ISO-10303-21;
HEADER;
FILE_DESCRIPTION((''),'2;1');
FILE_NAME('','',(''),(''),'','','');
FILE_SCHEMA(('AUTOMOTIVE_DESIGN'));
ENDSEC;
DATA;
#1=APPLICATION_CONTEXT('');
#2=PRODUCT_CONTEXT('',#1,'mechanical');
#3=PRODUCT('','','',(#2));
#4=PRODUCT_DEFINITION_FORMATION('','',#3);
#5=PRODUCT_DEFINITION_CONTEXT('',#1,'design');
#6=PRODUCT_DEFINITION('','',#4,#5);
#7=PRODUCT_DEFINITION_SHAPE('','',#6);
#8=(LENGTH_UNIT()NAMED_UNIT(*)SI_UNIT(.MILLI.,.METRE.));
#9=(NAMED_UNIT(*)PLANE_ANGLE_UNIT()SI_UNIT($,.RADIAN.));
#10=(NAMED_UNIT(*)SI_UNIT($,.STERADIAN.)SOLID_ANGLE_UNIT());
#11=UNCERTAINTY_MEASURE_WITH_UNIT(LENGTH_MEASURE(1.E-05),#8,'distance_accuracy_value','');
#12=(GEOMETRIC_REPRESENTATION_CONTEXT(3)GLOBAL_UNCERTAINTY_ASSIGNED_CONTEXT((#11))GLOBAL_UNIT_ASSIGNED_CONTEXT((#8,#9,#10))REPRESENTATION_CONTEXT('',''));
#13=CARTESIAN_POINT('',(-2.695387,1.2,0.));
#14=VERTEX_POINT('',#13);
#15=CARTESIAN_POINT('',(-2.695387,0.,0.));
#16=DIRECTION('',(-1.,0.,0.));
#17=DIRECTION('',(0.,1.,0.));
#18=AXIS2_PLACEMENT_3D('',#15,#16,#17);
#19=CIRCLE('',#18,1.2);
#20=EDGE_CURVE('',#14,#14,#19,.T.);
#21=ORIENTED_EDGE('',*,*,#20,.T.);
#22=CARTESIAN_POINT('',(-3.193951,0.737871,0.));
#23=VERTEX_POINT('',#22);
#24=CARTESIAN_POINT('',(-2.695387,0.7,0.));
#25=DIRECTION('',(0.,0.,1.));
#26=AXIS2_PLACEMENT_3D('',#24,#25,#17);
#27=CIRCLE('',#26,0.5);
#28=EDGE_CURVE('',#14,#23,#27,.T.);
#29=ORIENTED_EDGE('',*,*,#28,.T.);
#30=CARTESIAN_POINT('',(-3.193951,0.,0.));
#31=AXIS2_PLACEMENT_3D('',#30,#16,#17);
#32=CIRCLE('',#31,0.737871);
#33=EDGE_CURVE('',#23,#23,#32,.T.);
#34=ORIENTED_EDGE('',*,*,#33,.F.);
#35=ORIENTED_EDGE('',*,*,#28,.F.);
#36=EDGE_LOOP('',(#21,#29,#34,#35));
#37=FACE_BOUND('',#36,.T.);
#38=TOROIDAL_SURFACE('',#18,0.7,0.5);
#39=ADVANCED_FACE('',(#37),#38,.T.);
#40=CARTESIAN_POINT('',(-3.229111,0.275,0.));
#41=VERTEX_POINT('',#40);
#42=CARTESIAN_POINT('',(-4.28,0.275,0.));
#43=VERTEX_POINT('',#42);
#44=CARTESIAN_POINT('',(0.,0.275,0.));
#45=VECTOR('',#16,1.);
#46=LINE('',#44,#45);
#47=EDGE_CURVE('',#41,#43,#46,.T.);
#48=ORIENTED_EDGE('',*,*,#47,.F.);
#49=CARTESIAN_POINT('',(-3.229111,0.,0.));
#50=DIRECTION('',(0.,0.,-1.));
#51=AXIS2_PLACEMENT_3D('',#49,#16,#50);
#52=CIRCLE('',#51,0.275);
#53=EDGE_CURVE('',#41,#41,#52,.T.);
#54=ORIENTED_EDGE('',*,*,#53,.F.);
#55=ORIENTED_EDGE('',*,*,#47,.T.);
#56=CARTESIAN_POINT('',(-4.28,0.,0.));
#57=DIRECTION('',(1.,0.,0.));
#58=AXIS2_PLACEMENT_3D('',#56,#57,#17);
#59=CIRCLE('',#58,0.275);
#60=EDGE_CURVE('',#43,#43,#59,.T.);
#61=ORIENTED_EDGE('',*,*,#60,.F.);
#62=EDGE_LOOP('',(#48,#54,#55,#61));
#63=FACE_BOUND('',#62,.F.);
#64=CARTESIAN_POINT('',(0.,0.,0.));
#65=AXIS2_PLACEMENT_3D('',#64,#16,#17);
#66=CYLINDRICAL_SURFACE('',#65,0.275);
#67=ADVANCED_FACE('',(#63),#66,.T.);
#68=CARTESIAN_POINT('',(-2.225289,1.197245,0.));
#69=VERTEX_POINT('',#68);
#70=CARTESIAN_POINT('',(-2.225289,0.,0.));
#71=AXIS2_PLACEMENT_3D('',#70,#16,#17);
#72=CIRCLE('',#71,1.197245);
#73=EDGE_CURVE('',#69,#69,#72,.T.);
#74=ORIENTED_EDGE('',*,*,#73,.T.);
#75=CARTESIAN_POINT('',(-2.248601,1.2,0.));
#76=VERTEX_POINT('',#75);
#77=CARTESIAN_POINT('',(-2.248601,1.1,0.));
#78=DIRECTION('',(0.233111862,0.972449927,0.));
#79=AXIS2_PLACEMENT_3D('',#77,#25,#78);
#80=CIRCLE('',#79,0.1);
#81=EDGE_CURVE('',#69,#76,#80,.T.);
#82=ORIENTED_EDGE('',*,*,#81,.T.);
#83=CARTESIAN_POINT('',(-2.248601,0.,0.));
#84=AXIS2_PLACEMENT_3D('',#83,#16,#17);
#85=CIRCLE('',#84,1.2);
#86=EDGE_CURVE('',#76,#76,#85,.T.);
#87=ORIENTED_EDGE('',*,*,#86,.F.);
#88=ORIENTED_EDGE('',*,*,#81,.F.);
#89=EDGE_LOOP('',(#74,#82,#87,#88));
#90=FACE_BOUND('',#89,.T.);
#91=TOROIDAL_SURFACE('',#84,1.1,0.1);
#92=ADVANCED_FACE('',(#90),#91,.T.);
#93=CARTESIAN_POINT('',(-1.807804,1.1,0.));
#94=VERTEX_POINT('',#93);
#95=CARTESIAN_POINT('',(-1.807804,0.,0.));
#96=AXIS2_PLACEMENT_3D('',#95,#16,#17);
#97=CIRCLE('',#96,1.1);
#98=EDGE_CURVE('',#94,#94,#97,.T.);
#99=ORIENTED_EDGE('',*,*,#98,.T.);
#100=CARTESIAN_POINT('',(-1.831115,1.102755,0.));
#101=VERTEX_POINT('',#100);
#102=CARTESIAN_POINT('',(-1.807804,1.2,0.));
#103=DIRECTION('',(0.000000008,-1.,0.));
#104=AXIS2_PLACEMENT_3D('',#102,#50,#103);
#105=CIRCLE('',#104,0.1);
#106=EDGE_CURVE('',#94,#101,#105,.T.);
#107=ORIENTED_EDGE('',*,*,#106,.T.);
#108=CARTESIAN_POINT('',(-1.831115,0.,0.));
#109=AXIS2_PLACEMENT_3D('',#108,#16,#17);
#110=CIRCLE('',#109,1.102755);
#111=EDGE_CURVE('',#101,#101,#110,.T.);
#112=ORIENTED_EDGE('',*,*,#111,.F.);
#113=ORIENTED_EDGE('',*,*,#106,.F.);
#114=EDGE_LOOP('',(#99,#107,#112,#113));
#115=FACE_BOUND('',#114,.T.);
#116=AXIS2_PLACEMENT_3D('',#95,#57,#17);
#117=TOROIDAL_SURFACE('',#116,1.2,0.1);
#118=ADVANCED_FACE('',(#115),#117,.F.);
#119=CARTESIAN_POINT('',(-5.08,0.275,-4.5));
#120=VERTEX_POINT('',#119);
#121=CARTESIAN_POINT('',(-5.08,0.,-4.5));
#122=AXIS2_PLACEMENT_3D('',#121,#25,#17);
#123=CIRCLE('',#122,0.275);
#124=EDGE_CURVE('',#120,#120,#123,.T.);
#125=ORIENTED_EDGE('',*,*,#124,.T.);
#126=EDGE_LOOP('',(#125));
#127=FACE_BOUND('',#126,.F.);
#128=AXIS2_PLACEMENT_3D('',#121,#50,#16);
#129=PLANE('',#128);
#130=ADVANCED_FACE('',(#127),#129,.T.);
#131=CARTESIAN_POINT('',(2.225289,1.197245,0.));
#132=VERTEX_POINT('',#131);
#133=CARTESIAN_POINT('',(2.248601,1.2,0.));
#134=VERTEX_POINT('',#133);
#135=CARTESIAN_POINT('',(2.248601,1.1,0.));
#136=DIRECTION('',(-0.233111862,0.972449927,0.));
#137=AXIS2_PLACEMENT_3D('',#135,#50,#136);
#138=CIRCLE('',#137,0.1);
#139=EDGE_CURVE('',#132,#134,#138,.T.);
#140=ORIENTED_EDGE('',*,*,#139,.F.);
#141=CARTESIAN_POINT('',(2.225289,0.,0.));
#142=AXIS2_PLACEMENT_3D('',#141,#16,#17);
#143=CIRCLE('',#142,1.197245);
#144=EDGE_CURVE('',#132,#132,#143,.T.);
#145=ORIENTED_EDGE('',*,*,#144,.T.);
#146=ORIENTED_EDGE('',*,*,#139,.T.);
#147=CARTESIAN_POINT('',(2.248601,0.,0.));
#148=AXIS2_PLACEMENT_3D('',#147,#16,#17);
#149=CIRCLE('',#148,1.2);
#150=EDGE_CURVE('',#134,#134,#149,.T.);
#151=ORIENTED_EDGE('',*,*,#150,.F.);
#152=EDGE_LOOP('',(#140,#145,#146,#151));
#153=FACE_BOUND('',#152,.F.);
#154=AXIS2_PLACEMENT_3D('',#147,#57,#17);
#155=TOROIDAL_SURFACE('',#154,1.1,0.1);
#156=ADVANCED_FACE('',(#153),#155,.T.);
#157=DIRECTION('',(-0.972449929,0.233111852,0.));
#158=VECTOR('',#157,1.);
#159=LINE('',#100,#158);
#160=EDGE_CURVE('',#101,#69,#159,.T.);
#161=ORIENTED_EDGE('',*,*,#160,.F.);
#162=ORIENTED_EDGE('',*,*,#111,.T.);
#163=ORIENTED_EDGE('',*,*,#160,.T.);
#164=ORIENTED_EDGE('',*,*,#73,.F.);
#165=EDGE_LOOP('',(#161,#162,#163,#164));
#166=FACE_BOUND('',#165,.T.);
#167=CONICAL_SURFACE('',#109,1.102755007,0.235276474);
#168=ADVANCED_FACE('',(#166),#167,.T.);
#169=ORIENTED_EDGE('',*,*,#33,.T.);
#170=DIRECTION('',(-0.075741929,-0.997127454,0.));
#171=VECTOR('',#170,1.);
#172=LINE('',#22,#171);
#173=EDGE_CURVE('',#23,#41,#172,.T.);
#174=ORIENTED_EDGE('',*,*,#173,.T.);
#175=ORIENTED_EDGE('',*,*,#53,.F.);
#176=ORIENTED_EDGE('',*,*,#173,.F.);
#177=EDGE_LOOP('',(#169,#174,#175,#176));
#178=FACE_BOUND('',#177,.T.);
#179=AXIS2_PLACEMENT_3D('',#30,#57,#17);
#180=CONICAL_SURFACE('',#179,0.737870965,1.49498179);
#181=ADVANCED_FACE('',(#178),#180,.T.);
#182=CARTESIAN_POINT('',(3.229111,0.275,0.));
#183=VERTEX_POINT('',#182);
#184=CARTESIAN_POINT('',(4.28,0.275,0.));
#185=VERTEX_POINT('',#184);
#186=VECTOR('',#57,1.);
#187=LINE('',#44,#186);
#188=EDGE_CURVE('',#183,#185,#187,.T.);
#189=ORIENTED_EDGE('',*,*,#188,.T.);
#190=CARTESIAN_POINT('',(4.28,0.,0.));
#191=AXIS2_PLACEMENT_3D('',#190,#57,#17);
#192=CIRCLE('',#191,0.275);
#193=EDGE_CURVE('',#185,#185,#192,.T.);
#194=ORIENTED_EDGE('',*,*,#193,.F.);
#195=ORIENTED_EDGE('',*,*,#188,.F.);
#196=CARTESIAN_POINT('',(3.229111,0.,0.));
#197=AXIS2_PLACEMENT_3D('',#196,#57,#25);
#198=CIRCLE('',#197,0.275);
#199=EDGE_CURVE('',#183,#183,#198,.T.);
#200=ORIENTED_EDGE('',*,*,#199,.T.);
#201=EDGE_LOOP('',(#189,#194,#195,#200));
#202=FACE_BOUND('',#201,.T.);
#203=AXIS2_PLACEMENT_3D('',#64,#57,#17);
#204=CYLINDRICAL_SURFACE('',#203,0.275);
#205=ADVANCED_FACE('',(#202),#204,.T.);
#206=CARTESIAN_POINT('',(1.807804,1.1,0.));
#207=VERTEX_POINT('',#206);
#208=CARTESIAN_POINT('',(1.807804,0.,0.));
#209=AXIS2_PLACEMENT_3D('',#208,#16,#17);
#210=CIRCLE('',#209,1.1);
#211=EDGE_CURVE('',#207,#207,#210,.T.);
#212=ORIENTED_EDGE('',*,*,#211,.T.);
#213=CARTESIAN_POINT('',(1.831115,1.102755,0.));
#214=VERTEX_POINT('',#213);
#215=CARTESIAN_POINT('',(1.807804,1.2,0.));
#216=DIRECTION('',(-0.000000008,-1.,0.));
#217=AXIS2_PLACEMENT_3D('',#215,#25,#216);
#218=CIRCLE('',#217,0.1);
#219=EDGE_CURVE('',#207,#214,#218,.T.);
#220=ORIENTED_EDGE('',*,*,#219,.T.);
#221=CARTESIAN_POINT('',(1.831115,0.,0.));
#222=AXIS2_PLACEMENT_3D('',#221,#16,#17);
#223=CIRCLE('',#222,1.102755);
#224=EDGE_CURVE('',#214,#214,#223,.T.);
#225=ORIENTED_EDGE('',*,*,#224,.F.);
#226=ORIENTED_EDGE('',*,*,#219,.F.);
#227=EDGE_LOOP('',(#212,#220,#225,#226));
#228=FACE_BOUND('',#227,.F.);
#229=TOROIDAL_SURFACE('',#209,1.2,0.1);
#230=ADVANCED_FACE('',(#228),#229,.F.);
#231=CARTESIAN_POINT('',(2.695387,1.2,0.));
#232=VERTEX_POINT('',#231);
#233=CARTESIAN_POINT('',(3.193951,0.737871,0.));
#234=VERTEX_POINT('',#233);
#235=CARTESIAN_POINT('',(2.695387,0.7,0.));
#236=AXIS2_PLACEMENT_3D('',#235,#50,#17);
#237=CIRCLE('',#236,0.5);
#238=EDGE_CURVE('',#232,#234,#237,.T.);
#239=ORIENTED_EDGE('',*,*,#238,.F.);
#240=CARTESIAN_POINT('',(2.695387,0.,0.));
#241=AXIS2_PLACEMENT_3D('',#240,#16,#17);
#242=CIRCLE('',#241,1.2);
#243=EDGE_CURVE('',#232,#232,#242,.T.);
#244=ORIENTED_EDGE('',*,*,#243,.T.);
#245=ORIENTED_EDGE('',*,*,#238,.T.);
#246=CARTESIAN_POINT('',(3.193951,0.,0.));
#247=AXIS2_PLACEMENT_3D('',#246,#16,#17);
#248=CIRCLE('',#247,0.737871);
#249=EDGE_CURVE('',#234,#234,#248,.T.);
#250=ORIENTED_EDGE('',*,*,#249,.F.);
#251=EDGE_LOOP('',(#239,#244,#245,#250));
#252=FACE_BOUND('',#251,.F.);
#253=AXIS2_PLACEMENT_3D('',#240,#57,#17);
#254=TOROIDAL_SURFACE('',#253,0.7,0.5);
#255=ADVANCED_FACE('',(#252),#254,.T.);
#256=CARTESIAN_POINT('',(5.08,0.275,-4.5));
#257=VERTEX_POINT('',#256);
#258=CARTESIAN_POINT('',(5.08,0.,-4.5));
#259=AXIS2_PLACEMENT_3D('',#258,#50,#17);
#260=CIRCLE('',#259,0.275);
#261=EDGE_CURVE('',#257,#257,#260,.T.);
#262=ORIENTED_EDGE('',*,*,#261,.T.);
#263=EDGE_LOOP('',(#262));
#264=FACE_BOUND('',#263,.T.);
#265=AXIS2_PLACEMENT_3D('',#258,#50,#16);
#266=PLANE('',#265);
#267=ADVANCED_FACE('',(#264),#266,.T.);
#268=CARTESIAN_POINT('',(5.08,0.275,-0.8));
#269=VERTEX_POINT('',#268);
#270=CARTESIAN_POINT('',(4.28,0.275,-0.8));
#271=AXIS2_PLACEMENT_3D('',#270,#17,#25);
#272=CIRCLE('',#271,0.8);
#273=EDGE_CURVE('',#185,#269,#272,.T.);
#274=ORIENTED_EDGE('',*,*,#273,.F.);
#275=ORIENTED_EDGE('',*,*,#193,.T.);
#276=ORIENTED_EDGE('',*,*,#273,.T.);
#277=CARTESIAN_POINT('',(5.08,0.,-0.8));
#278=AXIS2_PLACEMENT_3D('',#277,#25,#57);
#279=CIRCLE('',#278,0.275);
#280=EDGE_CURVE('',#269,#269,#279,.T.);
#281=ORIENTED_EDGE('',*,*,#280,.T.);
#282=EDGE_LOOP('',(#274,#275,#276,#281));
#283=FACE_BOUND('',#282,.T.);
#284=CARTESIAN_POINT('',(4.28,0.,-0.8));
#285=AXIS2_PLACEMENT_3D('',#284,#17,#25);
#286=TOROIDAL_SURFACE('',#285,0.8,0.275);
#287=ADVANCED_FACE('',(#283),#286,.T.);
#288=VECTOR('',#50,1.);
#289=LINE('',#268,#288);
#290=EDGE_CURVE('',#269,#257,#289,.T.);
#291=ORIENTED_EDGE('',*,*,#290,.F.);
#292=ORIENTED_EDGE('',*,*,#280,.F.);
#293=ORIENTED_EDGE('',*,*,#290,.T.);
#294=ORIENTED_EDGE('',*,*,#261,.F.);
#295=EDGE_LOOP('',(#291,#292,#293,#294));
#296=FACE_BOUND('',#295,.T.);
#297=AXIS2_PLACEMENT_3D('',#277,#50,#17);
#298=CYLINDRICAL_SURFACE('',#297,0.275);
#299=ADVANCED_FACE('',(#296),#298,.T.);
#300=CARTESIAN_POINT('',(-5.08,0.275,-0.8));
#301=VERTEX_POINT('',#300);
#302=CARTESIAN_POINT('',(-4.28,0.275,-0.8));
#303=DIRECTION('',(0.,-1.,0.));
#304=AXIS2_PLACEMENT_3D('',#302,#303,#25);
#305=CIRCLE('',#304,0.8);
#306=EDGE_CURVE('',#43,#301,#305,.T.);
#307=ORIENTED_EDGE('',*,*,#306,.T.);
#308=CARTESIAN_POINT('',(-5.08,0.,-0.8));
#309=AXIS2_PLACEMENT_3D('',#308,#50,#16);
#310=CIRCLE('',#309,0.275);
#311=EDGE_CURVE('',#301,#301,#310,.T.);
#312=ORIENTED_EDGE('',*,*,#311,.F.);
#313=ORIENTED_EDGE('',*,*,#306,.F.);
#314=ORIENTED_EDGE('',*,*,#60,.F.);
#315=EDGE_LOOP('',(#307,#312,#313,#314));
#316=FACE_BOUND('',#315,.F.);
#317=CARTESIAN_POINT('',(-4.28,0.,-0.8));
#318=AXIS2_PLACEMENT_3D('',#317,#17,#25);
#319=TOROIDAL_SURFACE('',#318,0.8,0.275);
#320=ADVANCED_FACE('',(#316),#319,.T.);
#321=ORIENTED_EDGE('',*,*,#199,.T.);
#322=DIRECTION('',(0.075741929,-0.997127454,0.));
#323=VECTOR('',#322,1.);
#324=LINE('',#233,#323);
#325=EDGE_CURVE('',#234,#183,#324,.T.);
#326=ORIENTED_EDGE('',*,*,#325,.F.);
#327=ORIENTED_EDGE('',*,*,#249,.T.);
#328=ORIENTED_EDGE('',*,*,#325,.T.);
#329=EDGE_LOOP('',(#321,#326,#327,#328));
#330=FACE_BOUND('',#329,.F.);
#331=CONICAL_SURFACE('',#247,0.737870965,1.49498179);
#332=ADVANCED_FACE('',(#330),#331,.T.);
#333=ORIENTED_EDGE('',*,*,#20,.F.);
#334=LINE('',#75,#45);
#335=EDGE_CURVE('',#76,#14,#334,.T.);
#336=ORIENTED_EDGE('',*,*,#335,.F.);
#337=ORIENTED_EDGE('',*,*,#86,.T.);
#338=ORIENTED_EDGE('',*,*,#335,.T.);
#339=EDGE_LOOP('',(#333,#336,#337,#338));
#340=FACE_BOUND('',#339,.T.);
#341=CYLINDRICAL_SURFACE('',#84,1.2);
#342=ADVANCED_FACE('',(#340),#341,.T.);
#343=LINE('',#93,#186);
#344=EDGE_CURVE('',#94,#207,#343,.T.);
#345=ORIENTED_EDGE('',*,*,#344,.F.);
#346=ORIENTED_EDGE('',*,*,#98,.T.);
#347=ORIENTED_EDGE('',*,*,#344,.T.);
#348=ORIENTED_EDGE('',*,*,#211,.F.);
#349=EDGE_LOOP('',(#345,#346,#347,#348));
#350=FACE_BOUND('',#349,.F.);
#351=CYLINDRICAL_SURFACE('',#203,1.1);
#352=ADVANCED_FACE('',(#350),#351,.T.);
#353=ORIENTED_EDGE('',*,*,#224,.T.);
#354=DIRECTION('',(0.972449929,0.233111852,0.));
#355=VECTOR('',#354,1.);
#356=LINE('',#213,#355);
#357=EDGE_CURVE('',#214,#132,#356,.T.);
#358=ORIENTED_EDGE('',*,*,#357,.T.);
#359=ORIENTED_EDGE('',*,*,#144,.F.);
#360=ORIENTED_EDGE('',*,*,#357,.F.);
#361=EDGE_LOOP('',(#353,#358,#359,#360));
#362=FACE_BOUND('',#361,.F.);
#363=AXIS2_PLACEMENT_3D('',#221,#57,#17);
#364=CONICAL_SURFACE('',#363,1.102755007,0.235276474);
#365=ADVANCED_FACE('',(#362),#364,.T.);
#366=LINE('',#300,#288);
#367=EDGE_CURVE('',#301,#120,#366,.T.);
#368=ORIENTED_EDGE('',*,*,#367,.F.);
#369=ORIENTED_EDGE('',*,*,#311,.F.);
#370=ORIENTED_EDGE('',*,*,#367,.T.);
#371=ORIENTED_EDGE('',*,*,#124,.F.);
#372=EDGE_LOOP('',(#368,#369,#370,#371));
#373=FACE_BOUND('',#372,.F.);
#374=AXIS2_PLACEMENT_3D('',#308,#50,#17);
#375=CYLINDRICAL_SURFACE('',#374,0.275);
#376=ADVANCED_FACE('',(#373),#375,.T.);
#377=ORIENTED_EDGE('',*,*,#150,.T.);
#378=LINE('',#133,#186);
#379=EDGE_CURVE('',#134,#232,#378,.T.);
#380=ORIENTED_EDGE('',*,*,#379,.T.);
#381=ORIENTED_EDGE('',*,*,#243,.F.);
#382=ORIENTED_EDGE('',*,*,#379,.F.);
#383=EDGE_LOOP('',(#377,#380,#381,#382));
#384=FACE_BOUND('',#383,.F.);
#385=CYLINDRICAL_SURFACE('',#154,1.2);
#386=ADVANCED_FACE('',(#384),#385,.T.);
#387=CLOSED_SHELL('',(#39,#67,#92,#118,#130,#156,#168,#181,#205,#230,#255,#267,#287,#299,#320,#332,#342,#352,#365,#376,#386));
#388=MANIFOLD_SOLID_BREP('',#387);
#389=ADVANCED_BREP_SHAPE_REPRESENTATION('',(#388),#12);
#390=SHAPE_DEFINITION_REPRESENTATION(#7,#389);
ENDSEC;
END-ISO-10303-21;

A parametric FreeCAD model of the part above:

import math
import FreeCAD as App
import Part
import Sketcher

doc = App.newDocument("Part")
body = doc.addObject("PartDesign::Body", "Body")

sketch1 = doc.addObject("Sketcher::SketchObject", "Sketch")
body.addObject(sketch1)
sketch1.AttachmentSupport = (doc.XY_Plane, [""])
sketch1.MapMode = "FlatFace"
sketch1.addGeometry(Part.LineSegment(App.Vector(-3.194, 0.738, 0), App.Vector(-3.25, 0, 0)), False)
sketch1.addGeometry(Part.LineSegment(App.Vector(-3.25, 0, 0), App.Vector(0, 0, 0)), False)
sketch1.addGeometry(Part.LineSegment(App.Vector(0, 0, 0), App.Vector(0, 1.1, 0)), False)
sketch1.addGeometry(Part.LineSegment(App.Vector(0, 1.1, 0), App.Vector(-1.808, 1.1, 0)), False)
sketch1.addGeometry(Part.ArcOfCircle(Part.Circle(App.Vector(-1.808, 1.2, 0), App.Vector(0, 0, 1), 0.1), math.radians(-103.48), math.radians(-90)), False)
sketch1.addGeometry(Part.LineSegment(App.Vector(-1.831, 1.103, 0), App.Vector(-2.225, 1.197, 0)), False)
sketch1.addGeometry(Part.ArcOfCircle(Part.Circle(App.Vector(-2.249, 1.1, 0), App.Vector(0, 0, 1), 0.1), math.radians(76.52), math.radians(90)), False)
sketch1.addGeometry(Part.LineSegment(App.Vector(-2.249, 1.2, 0), App.Vector(-2.695, 1.2, 0)), False)
sketch1.addGeometry(Part.ArcOfCircle(Part.Circle(App.Vector(-2.695, 0.7, 0), App.Vector(0, 0, 1), 0.5), math.radians(90), math.radians(176)), False)
sketch1.addConstraint(Sketcher.Constraint("Coincident", 0, 2, 1, 1))
sketch1.addConstraint(Sketcher.Constraint("Coincident", 1, 2, 2, 1))
sketch1.addConstraint(Sketcher.Constraint("Coincident", 2, 2, 3, 1))
sketch1.addConstraint(Sketcher.Constraint("Tangent", 3, 2, 4, 2))
sketch1.addConstraint(Sketcher.Constraint("Tangent", 4, 1, 5, 1))
sketch1.addConstraint(Sketcher.Constraint("Tangent", 5, 2, 6, 1))
sketch1.addConstraint(Sketcher.Constraint("Tangent", 6, 2, 7, 1))
sketch1.addConstraint(Sketcher.Constraint("Tangent", 7, 2, 8, 1))
sketch1.addConstraint(Sketcher.Constraint("Tangent", 8, 2, 0, 1))
sketch1.addConstraint(Sketcher.Constraint("Horizontal", 1))
sketch1.addConstraint(Sketcher.Constraint("Vertical", 2))
sketch1.addConstraint(Sketcher.Constraint("Horizontal", 3))
sketch1.addConstraint(Sketcher.Constraint("Horizontal", 7))
sketch1.addConstraint(Sketcher.Constraint("Coincident", 1, 2, -1, 1))
sketch1.addConstraint(Sketcher.Constraint("Equal", 4, 6))
sketch1.addConstraint(Sketcher.Constraint("Horizontal", 6, 3, 2, 2))
sketch1.addConstraint(Sketcher.Constraint("Radius", 4, 0.1))
sketch1.addConstraint(Sketcher.Constraint("Radius", 8, 0.5))
sketch1.addConstraint(Sketcher.Constraint("DistanceY", 2, 1, 2, 2, 1.1))
sketch1.addConstraint(Sketcher.Constraint("DistanceX", 1, 1, 1, 2, 3.25))
sketch1.addConstraint(Sketcher.Constraint("DistanceX", 6, 3, -1, 1, 2.248601))
sketch1.addConstraint(Sketcher.Constraint("DistanceX", 8, 3, 5, 2, 0.470098))
sketch1.addConstraint(Sketcher.Constraint("Distance", 5, 0.405342))
revolution = doc.addObject("PartDesign::Revolution", "Revolution")
body.addObject(revolution)
revolution.Profile = sketch1
revolution.ReferenceAxis = (sketch1, ["H_Axis"])
revolution.Angle = 360
body2 = doc.addObject("PartDesign::Body", "Body001")
doc.recompute()

body2.BaseFeature = body
doc.recompute()

mirroring = doc.addObject("Part::Mirroring", "Mirroring")
mirroring.Source = body
mirroring.Base = App.Vector(0, 0, 0)
mirroring.Normal = App.Vector(1, 0, 0)
body3 = doc.addObject("PartDesign::Body", "Body002")
body3.BaseFeature = mirroring
boolean = doc.addObject("PartDesign::Boolean", "Boolean")
body2.addObject(boolean)
boolean.Type = "Fuse"
boolean.addObjects([body3])
doc.recompute()
body4 = doc.addObject("PartDesign::Body", "Body003")

sketch2 = doc.addObject("Sketcher::SketchObject", "Sketch001")
body4.addObject(sketch2)
sketch2.AttachmentSupport = (doc.getObject("YZ_Plane003"), [""])
sketch2.MapMode = "FlatFace"
sketch2.addGeometry(Part.Circle(App.Vector(0, 0, 0), App.Vector(0, 0, 1), 0.28), False)
sketch2.addConstraint(Sketcher.Constraint("Coincident", 0, 3, -1, 1))
sketch2.addConstraint(Sketcher.Constraint("Diameter", 0, 0.55))

sketch3 = doc.addObject("Sketcher::SketchObject", "Sketch002")
body4.addObject(sketch3)
sketch3.AttachmentSupport = (doc.getObject("XZ_Plane003"), [""])
sketch3.MapMode = "FlatFace"
sketch3.addGeometry(Part.LineSegment(App.Vector(0, 0, 0), App.Vector(4.3, 0, 0)), False)
sketch3.addGeometry(Part.ArcOfCircle(Part.Circle(App.Vector(4.3, -0.8, 0), App.Vector(0, 0, 1), 0.8), math.radians(0), math.radians(90)), False)
sketch3.addGeometry(Part.LineSegment(App.Vector(5.1, -0.8, 0), App.Vector(5.1, -4.5, 0)), False)
sketch3.addConstraint(Sketcher.Constraint("Tangent", 0, 2, 1, 2))
sketch3.addConstraint(Sketcher.Constraint("Tangent", 1, 1, 2, 1))
sketch3.addConstraint(Sketcher.Constraint("Horizontal", 0))
sketch3.addConstraint(Sketcher.Constraint("Vertical", 2))
sketch3.addConstraint(Sketcher.Constraint("Coincident", 0, 1, -1, 1))
sketch3.addConstraint(Sketcher.Constraint("Radius", 1, 0.8))
sketch3.addConstraint(Sketcher.Constraint("DistanceY", 2, 2, 2, 1, 3.7))
sketch3.addConstraint(Sketcher.Constraint("DistanceX", 0, 1, 0, 2, 4.28))
doc.recompute()

additivepipe = doc.addObject("PartDesign::AdditivePipe", "AdditivePipe")
body4.addObject(additivepipe)
additivepipe.Profile = sketch2
additivepipe.Spine = (sketch3, ["Edge1", "Edge2", "Edge3"])
doc.recompute()

body5 = doc.addObject("PartDesign::Body", "Body004")
body5.BaseFeature = body4
boolean2 = doc.addObject("PartDesign::Boolean", "Boolean001")
body2.addObject(boolean2)
boolean2.Type = "Fuse"
boolean2.addObjects([body5])
doc.recompute()

mirroring2 = doc.addObject("Part::Mirroring", "Mirroring001")
mirroring2.Source = body4
mirroring2.Base = App.Vector(0, 0, 0)
mirroring2.Normal = App.Vector(1, 0, 0)
body6 = doc.addObject("PartDesign::Body", "Body005")
body6.BaseFeature = mirroring2
boolean3 = doc.addObject("PartDesign::Boolean", "Boolean002")
body2.addObject(boolean3)
boolean3.Type = "Fuse"
boolean3.addObjects([body6])
doc.recompute()
mirroring.Visibility = False
mirroring2.Visibility = False

doc.recompute()
